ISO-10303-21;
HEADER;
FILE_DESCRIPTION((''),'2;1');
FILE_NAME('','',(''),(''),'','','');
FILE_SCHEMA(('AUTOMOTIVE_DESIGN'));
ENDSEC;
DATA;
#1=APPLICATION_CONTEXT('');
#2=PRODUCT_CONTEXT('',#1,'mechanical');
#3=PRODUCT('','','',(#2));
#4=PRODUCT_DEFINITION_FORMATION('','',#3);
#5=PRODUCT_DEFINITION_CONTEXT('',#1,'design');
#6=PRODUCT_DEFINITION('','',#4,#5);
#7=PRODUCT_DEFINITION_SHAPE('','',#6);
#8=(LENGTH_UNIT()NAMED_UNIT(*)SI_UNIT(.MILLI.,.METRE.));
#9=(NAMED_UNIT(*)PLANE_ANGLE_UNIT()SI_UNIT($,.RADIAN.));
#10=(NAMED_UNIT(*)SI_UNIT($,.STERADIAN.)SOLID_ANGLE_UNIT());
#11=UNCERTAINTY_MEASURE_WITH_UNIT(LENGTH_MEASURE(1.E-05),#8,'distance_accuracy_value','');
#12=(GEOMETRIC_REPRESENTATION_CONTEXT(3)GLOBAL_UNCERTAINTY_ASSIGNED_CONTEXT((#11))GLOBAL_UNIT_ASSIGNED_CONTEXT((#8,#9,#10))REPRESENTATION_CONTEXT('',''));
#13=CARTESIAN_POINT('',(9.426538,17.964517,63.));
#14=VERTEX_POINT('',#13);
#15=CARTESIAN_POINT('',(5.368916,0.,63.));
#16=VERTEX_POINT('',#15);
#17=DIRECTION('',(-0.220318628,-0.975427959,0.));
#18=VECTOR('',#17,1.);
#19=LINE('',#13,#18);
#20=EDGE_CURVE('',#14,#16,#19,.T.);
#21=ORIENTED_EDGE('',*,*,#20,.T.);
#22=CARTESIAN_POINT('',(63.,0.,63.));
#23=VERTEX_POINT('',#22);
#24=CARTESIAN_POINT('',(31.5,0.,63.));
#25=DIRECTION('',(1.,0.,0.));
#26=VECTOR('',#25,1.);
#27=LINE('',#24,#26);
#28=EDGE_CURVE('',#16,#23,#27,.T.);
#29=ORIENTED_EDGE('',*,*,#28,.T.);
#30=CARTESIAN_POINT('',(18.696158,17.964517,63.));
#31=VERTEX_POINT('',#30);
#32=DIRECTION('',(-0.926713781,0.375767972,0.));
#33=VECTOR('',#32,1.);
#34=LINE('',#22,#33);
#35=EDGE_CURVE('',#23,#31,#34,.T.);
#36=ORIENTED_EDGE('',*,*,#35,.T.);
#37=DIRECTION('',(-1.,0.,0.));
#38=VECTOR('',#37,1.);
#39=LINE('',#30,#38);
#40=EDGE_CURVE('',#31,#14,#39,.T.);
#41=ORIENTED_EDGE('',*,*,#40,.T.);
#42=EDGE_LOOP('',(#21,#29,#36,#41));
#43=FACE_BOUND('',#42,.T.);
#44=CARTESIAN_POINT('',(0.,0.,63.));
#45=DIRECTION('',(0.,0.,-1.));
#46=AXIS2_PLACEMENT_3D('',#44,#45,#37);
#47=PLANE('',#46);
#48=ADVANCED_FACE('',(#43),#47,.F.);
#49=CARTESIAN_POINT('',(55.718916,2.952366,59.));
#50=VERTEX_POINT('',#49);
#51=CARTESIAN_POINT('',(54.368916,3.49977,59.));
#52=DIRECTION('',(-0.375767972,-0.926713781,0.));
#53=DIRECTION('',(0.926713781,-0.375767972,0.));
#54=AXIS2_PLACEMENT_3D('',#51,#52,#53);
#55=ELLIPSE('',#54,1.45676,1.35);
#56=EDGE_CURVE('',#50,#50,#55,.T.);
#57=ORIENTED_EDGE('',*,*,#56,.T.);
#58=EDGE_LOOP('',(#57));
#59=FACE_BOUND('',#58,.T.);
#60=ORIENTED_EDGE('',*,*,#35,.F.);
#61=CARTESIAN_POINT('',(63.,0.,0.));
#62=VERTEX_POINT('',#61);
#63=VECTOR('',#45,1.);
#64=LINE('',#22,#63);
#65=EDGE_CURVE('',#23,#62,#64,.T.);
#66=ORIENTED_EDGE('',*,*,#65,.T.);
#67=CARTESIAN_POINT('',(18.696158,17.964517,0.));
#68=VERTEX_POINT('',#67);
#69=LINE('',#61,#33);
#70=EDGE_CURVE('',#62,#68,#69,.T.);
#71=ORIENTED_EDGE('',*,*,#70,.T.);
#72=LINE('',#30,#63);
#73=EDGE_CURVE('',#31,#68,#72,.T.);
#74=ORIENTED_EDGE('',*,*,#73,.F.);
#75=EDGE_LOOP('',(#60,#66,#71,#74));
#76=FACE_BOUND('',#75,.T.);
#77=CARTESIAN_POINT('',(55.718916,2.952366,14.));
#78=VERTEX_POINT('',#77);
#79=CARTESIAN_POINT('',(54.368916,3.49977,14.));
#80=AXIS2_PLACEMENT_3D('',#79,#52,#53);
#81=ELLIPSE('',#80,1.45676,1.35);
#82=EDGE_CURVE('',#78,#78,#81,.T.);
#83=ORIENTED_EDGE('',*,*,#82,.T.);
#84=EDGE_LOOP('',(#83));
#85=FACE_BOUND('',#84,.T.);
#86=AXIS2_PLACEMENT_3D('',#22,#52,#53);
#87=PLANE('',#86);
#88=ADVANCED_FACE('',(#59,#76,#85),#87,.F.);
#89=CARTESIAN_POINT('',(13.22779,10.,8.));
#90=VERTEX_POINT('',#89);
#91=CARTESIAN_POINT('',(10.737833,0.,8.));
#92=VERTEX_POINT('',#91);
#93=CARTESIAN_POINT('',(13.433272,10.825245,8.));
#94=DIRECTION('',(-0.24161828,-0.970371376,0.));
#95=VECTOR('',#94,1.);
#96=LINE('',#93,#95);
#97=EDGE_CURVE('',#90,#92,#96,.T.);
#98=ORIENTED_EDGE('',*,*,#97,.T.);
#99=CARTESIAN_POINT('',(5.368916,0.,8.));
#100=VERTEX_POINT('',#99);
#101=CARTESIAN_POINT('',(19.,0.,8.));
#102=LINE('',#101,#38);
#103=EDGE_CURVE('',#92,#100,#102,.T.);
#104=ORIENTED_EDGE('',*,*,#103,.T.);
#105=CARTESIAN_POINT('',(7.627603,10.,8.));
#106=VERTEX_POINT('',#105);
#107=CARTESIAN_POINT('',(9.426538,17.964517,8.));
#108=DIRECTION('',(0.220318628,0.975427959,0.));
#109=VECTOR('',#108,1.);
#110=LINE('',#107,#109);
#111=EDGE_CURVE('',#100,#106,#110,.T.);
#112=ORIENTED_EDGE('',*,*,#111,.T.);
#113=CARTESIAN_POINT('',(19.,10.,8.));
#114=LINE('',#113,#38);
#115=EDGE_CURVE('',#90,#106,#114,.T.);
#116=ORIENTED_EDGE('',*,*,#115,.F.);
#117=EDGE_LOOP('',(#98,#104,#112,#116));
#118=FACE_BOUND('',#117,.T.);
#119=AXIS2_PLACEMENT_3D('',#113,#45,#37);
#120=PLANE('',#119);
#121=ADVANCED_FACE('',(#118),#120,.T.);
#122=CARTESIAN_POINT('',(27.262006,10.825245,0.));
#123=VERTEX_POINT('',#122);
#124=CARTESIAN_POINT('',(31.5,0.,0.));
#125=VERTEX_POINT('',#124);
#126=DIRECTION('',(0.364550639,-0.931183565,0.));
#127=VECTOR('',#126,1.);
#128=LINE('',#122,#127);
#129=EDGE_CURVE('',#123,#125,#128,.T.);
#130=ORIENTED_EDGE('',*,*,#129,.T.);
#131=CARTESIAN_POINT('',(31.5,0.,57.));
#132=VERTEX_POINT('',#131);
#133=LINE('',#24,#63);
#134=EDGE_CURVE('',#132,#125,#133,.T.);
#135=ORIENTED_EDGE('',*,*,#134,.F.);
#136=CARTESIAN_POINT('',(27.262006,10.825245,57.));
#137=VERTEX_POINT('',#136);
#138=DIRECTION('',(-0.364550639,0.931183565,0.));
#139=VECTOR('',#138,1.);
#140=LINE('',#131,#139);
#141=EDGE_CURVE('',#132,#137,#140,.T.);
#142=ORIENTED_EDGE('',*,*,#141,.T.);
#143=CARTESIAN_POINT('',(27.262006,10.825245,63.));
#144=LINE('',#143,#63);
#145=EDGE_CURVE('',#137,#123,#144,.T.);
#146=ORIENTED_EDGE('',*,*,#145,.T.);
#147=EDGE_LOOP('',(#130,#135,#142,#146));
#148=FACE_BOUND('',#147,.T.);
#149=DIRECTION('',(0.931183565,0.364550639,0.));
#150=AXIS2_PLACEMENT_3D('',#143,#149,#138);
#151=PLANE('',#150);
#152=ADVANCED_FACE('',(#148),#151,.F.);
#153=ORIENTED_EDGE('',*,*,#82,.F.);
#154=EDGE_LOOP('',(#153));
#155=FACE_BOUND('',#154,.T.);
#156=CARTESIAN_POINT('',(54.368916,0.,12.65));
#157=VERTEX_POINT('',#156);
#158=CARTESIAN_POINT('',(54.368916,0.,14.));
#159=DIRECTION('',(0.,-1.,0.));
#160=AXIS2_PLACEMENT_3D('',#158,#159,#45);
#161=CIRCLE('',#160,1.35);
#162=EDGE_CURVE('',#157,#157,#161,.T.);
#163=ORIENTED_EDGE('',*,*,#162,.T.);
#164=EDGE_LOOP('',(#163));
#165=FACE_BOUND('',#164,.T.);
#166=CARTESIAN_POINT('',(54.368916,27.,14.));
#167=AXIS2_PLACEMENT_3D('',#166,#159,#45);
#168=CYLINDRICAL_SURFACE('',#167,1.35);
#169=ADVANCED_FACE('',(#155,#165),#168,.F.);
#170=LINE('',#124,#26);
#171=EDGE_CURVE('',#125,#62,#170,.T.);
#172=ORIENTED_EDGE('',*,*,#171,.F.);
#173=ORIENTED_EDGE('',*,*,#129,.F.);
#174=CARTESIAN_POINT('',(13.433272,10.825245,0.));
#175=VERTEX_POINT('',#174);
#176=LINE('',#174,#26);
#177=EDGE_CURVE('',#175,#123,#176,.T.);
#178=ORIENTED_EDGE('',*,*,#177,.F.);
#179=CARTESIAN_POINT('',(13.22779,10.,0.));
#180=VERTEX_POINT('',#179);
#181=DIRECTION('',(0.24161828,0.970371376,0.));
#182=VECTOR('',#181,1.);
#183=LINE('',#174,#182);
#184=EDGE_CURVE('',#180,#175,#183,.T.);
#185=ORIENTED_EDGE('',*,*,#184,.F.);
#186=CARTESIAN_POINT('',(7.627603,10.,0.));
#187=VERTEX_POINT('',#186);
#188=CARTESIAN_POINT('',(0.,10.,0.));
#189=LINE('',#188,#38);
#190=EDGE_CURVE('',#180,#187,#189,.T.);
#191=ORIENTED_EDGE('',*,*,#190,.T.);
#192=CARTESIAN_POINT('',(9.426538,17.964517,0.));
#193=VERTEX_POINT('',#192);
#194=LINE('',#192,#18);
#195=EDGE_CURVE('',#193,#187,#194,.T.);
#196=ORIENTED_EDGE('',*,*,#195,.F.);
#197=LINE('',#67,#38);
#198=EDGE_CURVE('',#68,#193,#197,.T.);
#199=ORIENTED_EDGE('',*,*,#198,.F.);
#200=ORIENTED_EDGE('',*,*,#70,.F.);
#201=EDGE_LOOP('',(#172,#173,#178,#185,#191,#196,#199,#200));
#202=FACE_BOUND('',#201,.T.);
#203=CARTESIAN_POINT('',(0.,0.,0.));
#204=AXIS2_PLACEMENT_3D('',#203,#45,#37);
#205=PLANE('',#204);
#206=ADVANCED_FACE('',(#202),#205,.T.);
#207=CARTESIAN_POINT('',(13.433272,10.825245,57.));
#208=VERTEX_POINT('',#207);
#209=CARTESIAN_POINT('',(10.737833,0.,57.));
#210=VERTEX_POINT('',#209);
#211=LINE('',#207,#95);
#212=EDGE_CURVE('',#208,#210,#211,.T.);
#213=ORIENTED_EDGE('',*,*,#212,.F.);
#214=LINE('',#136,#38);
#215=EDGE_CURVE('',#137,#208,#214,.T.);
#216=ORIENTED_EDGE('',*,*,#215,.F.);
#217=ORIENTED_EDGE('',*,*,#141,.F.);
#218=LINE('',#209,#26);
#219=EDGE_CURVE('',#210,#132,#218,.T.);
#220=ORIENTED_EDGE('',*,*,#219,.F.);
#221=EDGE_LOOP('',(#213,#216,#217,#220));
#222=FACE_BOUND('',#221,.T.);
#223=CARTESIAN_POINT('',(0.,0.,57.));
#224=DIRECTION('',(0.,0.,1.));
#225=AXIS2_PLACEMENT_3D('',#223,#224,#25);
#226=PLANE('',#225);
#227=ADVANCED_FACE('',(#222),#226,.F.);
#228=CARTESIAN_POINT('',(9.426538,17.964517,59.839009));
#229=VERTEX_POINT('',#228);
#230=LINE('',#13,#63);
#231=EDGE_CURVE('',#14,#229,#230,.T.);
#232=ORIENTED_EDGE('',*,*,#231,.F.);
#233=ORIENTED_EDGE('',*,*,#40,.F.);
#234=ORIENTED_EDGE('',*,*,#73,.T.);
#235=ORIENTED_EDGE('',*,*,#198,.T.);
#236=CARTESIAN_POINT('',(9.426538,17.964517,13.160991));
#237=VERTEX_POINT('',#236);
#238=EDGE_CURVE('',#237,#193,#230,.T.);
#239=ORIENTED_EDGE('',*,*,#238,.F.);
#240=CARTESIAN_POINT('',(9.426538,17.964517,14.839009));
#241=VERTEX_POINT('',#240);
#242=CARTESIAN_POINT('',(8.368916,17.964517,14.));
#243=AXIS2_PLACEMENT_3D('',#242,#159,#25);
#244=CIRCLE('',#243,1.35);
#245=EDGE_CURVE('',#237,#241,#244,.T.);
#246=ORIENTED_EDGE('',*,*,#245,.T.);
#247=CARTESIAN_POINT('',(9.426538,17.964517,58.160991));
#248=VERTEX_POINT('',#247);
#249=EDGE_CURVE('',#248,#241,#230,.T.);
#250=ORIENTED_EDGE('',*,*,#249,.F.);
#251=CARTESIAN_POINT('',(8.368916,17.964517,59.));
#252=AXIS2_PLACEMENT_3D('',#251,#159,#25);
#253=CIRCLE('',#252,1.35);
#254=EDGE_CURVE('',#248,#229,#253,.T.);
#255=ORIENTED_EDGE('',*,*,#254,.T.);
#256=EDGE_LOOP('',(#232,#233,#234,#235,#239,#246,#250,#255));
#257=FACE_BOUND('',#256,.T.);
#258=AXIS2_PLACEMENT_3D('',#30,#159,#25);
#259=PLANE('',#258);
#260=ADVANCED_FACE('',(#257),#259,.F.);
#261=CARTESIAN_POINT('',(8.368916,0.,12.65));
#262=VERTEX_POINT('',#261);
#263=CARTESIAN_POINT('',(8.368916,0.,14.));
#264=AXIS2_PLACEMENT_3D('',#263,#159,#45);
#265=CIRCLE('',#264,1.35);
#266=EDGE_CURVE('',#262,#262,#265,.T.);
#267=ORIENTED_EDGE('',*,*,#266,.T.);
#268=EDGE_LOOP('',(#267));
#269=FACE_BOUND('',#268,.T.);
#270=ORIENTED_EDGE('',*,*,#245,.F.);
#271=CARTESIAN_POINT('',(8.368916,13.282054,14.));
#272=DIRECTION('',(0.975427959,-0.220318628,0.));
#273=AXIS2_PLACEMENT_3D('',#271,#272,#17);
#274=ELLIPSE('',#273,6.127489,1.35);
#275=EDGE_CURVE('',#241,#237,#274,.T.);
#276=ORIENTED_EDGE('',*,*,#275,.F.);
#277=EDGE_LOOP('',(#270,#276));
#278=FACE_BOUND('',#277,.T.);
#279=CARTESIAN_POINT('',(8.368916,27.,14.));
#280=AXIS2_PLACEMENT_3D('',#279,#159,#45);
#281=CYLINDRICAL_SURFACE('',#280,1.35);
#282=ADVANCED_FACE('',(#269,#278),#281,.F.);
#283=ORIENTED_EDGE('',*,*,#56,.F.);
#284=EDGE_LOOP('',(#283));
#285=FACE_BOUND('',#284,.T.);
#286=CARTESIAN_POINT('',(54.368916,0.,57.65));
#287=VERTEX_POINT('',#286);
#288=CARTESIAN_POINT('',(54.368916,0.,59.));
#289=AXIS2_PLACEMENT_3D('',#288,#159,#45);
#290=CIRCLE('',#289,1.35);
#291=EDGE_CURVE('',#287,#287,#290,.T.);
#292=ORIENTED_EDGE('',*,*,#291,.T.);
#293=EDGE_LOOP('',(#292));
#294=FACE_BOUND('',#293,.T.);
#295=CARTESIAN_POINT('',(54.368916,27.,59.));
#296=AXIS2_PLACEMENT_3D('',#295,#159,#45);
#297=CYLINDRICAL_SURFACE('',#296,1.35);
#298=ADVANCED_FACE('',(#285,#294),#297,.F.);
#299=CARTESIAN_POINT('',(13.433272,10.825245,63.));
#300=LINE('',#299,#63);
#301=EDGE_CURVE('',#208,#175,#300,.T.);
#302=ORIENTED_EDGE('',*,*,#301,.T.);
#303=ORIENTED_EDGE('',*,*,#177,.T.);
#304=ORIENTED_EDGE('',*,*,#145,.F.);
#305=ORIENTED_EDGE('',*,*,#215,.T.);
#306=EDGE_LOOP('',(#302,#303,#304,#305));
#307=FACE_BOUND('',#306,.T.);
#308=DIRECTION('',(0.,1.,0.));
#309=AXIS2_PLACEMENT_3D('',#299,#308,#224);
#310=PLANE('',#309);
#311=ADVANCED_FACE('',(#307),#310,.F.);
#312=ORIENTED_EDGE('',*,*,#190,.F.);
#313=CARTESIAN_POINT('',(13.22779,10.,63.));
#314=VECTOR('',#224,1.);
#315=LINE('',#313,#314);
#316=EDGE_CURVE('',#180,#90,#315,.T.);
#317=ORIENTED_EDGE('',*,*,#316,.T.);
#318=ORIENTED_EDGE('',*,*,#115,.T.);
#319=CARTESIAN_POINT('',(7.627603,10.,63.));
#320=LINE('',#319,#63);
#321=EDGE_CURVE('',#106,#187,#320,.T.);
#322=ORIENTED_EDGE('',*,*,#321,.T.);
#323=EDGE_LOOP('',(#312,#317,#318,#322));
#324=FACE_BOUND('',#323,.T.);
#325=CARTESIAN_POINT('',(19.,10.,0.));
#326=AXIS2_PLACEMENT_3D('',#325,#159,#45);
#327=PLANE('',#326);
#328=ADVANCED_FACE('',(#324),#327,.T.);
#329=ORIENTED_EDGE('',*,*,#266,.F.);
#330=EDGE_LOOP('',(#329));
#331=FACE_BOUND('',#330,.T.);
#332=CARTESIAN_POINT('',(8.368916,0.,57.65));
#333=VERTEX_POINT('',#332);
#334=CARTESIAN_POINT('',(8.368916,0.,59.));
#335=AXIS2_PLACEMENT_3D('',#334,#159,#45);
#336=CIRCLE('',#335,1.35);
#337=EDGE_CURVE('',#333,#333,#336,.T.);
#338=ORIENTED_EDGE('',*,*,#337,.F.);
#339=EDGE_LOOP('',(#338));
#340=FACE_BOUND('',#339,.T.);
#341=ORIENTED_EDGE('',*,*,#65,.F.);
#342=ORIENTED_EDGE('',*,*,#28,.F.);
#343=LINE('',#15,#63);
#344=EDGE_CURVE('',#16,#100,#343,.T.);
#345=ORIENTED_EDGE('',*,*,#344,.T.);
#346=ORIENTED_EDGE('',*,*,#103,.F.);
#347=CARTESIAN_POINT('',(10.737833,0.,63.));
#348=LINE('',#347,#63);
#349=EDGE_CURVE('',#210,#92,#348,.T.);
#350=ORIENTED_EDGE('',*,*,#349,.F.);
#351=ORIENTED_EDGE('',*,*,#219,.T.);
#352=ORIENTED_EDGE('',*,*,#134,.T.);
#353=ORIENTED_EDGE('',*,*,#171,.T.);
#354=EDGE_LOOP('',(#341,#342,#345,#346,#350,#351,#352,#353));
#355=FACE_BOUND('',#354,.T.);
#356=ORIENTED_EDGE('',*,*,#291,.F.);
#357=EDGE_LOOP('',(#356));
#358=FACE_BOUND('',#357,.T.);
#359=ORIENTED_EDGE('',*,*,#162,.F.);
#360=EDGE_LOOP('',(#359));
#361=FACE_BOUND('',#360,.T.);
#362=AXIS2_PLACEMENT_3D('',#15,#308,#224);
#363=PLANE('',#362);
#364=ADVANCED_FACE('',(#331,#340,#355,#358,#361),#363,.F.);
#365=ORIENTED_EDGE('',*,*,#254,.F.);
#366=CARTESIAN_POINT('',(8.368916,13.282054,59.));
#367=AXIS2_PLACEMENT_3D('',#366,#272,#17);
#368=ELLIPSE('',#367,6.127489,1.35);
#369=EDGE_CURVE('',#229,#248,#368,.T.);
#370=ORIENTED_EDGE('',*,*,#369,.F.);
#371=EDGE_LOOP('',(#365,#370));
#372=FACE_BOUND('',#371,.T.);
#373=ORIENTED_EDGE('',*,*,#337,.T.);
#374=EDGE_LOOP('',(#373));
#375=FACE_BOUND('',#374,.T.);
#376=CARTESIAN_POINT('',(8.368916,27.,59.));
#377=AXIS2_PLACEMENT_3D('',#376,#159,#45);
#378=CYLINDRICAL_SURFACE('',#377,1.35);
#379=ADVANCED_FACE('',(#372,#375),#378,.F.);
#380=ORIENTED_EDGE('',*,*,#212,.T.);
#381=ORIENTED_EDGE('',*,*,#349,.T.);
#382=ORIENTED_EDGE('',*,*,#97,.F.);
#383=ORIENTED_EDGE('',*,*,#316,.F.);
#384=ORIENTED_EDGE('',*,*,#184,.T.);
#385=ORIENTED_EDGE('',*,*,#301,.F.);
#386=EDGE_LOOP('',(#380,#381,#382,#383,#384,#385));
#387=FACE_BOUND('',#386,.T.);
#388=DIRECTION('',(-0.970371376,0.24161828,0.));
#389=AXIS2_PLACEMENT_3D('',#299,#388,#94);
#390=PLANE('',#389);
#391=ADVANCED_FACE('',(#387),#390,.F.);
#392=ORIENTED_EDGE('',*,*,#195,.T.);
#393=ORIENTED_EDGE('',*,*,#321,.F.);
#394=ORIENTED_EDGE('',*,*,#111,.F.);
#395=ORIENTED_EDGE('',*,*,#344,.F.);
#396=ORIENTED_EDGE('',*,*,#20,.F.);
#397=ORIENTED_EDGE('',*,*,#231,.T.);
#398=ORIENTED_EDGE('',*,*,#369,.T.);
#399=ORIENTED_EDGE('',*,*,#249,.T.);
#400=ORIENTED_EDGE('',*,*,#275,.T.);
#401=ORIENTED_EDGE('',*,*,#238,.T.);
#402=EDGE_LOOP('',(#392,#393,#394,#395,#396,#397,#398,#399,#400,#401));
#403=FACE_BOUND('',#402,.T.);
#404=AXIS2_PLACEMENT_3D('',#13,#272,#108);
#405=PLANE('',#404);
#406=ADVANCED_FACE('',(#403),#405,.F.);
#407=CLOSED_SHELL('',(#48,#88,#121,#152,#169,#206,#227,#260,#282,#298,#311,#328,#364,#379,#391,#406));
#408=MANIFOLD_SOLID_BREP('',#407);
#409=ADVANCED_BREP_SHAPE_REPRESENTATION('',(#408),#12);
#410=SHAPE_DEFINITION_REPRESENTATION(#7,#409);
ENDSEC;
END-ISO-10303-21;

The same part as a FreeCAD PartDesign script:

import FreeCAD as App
import Part
import Sketcher
from FreeCAD import Vector
Q = App.Units.Quantity


def add_polygon(sketch, points):
    """Adds a closed chain of lines whose ends are joined by coincident constraints."""
    first, n = sketch.GeometryCount, len(points)
    for a, b in zip(points, points[1:] + points[:1]):
        sketch.addGeometry(Part.LineSegment(App.Vector(*a, 0), App.Vector(*b, 0)), False)
    for i in range(n):
        sketch.addConstraint(Sketcher.Constraint("Coincident", first + i, 2, first + (i + 1) % n, 1))

doc = App.newDocument("Part")
body = doc.addObject("PartDesign::Body", "Body")

# Sketch on XY plane
sketch1 = body.newObject("Sketcher::SketchObject", "Sketch")
sketch1.AttachmentSupport = (doc.getObject("XY_Plane"), [""])
sketch1.MapMode = "FlatFace"
add_polygon(sketch1, [(5, 0), (11, 0), (13, 11), (27, 11), (32, 0), (63, 0), (19, 18), (9, 18)])  # lines 0-7
sketch1.addConstraint([
    Sketcher.Constraint("Horizontal", 0),
    Sketcher.Constraint("Horizontal", 2),
    Sketcher.Constraint("Horizontal", 4),
    Sketcher.Constraint("Horizontal", 6),
    Sketcher.Constraint("PointOnObject", 0, 2, -1),
    Sketcher.Constraint("PointOnObject", 3, 2, -1),
    Sketcher.Constraint("DistanceX", 4, 1, 4, 2, Q("31.5 mm")),
    Sketcher.Constraint("DistanceX", -1, 1, 4, 2, Q("63 mm")),
    Sketcher.Constraint("DistanceX", 6, 2, 6, 1, Q("9.269619 mm")),
    Sketcher.Constraint("Distance", 5, Q("47.807471 mm")),
    Sketcher.Constraint("Distance", 7, Q("18.417061 mm")),
    Sketcher.Constraint("DistanceX", 0, 1, 0, 2, Q("5.368916 mm")),
    Sketcher.Constraint("DistanceX", 2, 1, 2, 2, Q("13.828734 mm")),
    Sketcher.Constraint("DistanceX", -1, 1, 6, 2, Q("9.426538 mm")),
    Sketcher.Constraint("DistanceX", 0, 2, 1, 2, Q("2.695439 mm")),
    Sketcher.Constraint("DistanceY", 1, 2, 5, 2, Q("7.139272 mm")),
])
pad1 = body.newObject("PartDesign::Pad", "Pad")
pad1.Profile = sketch1
pad1.Length = 63

# Sketch on XY plane
sketch2 = body.newObject("Sketcher::SketchObject", "Sketch001")
sketch2.AttachmentSupport = (doc.getObject("XY_Plane"), [""])
sketch2.MapMode = "FlatFace"
sketch2.AttachmentOffset = App.Placement(Vector(0, 0, 63), App.Rotation())
add_polygon(sketch2, [(11, 0), (32, 0), (27, 11), (13, 11)])  # lines 0-3
sketch2.addConstraint([
    Sketcher.Constraint("Horizontal", 0),
    Sketcher.Constraint("Horizontal", 2),
    Sketcher.Constraint("PointOnObject", 0, 2, -1),
    Sketcher.Constraint("DistanceX", -1, 1, 0, 2, Q("31.5 mm")),
    Sketcher.Constraint("DistanceX", 0, 1, 0, 2, Q("20.762167 mm")),
    Sketcher.Constraint("DistanceX", 2, 2, 2, 1, Q("13.828734 mm")),
    Sketcher.Constraint("DistanceX", 3, 2, 2, 2, Q("2.695439 mm")),
    Sketcher.Constraint("Distance", 1, Q("11.625254 mm")),
])
pad2 = body.newObject("PartDesign::Pad", "Pad001")
pad2.Profile = sketch2
pad2.Length = 6
pad2.Reversed = True

# Sketch on YZ plane
sketch3 = body.newObject("Sketcher::SketchObject", "Sketch002")
sketch3.AttachmentSupport = (doc.getObject("YZ_Plane"), [""])
sketch3.MapMode = "FlatFace"
add_polygon(sketch3, [(10, 8), (0, 8), (0, 0), (10, 0)])  # lines 0-3
sketch3.addConstraint([
    Sketcher.Constraint("Horizontal", 0),
    Sketcher.Constraint("Vertical", 1),
    Sketcher.Constraint("Horizontal", 2),
    Sketcher.Constraint("Vertical", 3),
    Sketcher.Constraint("Coincident", 1, 2, -1, 1),
    Sketcher.Constraint("DistanceX", 0, 2, 0, 1, Q("10 mm")),
    Sketcher.Constraint("DistanceY", 1, 2, 1, 1, Q("8 mm")),
])
pocket1 = body.newObject("PartDesign::Pocket", "Pocket")
pocket1.Profile = sketch3
pocket1.Length = 19
pocket1.Reversed = True

# Sketch on XZ plane
sketch4 = body.newObject("Sketcher::SketchObject", "Sketch003")
sketch4.AttachmentSupport = (doc.getObject("XZ_Plane"), [""])
sketch4.MapMode = "FlatFace"
sketch4.addGeometry([
    Part.Circle(Vector(8.4, 59, 0), Vector(0, 0, 1), 1.4),
    Part.Circle(Vector(54.4, 59, 0), Vector(0, 0, 1), 1.4),
    Part.Circle(Vector(54.4, 14, 0), Vector(0, 0, 1), 1.4),
    Part.Circle(Vector(8.4, 14, 0), Vector(0, 0, 1), 1.4),
], False)
sketch4.addConstraint([
    Sketcher.Constraint("Equal", 0, 1),
    Sketcher.Constraint("Equal", 1, 2),
    Sketcher.Constraint("Equal", 2, 3),
    Sketcher.Constraint("Horizontal", 0, 3, 1, 3),
    Sketcher.Constraint("Horizontal", 2, 3, 3, 3),
    Sketcher.Constraint("Vertical", 1, 3, 2, 3),
    Sketcher.Constraint("Vertical", 0, 3, 3, 3),
    Sketcher.Constraint("Diameter", 0, Q("2.7 mm")),
    Sketcher.Constraint("DistanceY", -1, 1, 0, 3, Q("59 mm")),
    Sketcher.Constraint("DistanceY", -1, 1, 2, 3, Q("14 mm")),
    Sketcher.Constraint("DistanceX", 0, 3, 1, 3, Q("46 mm")),
    Sketcher.Constraint("DistanceX", -1, 1, 0, 3, Q("8.368916 mm")),
])
pocket2 = body.newObject("PartDesign::Pocket", "Pocket001")
pocket2.Profile = sketch4
pocket2.Length = 27

doc.recompute()
